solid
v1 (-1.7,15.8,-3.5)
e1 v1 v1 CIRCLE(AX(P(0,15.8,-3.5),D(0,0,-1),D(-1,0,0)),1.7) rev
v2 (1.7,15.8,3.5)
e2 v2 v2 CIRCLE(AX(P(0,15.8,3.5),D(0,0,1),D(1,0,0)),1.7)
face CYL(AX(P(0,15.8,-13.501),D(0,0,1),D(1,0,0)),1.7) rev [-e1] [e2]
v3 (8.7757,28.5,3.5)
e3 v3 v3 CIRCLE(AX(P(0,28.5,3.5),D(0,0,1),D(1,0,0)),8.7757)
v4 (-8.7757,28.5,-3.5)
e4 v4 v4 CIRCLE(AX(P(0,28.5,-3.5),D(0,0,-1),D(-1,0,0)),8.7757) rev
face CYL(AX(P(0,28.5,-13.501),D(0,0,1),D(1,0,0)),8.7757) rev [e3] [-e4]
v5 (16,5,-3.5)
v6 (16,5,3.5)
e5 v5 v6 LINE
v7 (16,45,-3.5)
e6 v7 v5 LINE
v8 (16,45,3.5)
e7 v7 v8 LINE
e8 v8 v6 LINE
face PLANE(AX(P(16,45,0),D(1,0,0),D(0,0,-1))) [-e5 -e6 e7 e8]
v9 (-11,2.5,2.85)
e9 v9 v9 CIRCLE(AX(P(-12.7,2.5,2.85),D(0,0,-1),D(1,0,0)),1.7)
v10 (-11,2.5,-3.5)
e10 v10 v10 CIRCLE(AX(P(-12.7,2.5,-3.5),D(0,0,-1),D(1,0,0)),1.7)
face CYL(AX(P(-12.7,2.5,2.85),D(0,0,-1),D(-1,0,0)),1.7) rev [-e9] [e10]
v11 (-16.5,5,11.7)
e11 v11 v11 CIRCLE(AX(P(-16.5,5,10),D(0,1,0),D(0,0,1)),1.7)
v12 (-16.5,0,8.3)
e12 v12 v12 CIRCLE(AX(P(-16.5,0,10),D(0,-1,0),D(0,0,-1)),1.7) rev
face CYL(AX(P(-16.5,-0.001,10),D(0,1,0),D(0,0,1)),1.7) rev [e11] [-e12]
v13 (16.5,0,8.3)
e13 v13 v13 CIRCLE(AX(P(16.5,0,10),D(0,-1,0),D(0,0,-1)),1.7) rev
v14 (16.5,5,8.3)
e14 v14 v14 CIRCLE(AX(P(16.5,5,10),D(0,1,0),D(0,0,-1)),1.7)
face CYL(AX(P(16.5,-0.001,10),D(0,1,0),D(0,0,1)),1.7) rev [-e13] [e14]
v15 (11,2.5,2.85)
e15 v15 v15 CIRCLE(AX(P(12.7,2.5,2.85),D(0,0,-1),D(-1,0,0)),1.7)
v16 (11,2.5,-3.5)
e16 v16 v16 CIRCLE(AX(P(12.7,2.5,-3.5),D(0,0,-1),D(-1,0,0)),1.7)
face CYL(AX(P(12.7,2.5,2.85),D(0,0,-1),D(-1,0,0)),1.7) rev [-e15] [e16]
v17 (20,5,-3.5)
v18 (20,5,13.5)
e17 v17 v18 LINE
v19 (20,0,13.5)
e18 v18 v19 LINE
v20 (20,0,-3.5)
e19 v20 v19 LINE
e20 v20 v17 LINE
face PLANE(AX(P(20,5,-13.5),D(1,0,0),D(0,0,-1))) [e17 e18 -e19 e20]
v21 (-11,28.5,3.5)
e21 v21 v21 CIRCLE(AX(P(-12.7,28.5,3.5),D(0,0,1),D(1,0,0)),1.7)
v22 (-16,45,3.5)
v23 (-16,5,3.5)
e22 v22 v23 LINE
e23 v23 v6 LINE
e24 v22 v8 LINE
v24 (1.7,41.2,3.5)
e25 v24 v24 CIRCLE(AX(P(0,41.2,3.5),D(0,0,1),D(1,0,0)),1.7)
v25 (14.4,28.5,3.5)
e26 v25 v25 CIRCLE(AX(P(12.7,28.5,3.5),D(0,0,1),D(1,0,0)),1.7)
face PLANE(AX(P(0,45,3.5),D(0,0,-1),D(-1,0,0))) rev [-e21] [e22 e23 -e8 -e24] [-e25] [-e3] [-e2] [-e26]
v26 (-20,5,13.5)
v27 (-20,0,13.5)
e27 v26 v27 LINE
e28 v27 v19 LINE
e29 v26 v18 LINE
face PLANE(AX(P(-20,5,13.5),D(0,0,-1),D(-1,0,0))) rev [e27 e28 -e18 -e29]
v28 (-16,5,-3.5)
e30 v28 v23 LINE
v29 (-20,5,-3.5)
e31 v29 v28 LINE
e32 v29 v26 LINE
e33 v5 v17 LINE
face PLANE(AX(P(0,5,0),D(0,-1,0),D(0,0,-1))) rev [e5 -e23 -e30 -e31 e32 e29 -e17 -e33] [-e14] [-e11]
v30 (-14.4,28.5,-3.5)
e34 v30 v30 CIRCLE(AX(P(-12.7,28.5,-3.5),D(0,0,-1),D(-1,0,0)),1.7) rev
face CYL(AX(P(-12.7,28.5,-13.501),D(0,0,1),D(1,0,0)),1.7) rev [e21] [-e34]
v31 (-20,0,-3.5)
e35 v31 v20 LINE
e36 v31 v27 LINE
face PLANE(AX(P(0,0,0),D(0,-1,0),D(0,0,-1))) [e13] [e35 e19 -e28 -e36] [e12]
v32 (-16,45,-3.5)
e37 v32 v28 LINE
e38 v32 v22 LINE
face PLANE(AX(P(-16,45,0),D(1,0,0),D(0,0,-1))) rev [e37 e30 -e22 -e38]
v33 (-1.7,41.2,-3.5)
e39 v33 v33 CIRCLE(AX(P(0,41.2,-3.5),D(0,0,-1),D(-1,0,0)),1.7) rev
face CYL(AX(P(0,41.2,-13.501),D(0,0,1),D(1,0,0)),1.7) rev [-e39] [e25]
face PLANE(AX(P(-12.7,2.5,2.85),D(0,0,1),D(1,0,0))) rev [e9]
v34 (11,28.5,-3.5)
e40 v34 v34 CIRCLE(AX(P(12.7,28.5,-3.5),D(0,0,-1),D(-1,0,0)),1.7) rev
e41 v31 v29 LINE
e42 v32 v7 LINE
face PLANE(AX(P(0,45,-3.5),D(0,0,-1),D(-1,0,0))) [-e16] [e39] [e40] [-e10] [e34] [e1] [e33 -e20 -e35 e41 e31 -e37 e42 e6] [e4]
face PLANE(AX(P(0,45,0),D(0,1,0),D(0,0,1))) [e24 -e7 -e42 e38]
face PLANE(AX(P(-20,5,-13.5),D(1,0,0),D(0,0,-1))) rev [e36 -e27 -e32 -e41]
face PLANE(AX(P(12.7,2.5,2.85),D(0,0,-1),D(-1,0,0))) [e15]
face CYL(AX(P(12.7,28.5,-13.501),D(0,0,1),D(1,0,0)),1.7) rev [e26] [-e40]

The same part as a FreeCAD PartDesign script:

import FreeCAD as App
import Part
import Sketcher
Q = App.Units.Quantity

doc = App.newDocument("Part")
body = doc.addObject("PartDesign::Body", "Body")

sketch1 = body.newObject("Sketcher::SketchObject", "Sketch")
sketch1.AttachmentSupport = (doc.getObject("XZ_Plane"), [""])
sketch1.MapMode = "FlatFace"
sketch1.addGeometry(Part.LineSegment(App.Vector(-20, -14, 0), App.Vector(-20, 14, 0)), False)
sketch1.addGeometry(Part.LineSegment(App.Vector(-20, 14, 0), App.Vector(20, 14, 0)), False)
sketch1.addGeometry(Part.LineSegment(App.Vector(20, 14, 0), App.Vector(20, -14, 0)), False)
sketch1.addGeometry(Part.LineSegment(App.Vector(20, -14, 0), App.Vector(-20, -14, 0)), False)
sketch1.addGeometry(Part.LineSegment(App.Vector(16, 4, 0), App.Vector(-16, 4, 0)), False)
sketch1.addGeometry(Part.LineSegment(App.Vector(-16, 4, 0), App.Vector(-16, -4, 0)), False)
sketch1.addGeometry(Part.LineSegment(App.Vector(-16, -4, 0), App.Vector(16, -4, 0)), False)
sketch1.addGeometry(Part.LineSegment(App.Vector(16, -4, 0), App.Vector(16, 4, 0)), False)
sketch1.addConstraint(Sketcher.Constraint("Coincident", 0, 2, 1, 1))
sketch1.addConstraint(Sketcher.Constraint("Coincident", 1, 2, 2, 1))
sketch1.addConstraint(Sketcher.Constraint("Coincident", 2, 2, 3, 1))
sketch1.addConstraint(Sketcher.Constraint("Coincident", 3, 2, 0, 1))
sketch1.addConstraint(Sketcher.Constraint("Coincident", 4, 2, 5, 1))
sketch1.addConstraint(Sketcher.Constraint("Coincident", 5, 2, 6, 1))
sketch1.addConstraint(Sketcher.Constraint("Coincident", 6, 2, 7, 1))
sketch1.addConstraint(Sketcher.Constraint("Coincident", 7, 2, 4, 1))
sketch1.addConstraint(Sketcher.Constraint("Vertical", 0))
sketch1.addConstraint(Sketcher.Constraint("Horizontal", 1))
sketch1.addConstraint(Sketcher.Constraint("Vertical", 2))
sketch1.addConstraint(Sketcher.Constraint("Horizontal", 3))
sketch1.addConstraint(Sketcher.Constraint("Horizontal", 4))
sketch1.addConstraint(Sketcher.Constraint("Vertical", 5))
sketch1.addConstraint(Sketcher.Constraint("Horizontal", 6))
sketch1.addConstraint(Sketcher.Constraint("Vertical", 7))
sketch1.addConstraint(Sketcher.Constraint("Symmetric", 0, 2, 2, 2, -1, 1))
sketch1.addConstraint(Sketcher.Constraint("Symmetric", 4, 2, 6, 2, -1, 1))
sketch1.addConstraint(Sketcher.Constraint("DistanceX", 1, 1, 1, 2, Q("40 mm")))
sketch1.addConstraint(Sketcher.Constraint("DistanceX", 4, 2, 4, 1, Q("32 mm")))
sketch1.addConstraint(Sketcher.Constraint("DistanceY", 0, 1, 0, 2, Q("27 mm")))
sketch1.addConstraint(Sketcher.Constraint("DistanceY", 5, 2, 5, 1, Q("7 mm")))
pad1 = body.newObject("PartDesign::Pad", "Pad")
pad1.Profile = sketch1
pad1.Length = 5
pad1.Reversed = True

sketch2 = body.newObject("Sketcher::SketchObject", "Sketch001")
sketch2.AttachmentSupport = (doc.getObject("XZ_Plane"), [""])
sketch2.MapMode = "FlatFace"
sketch2.addGeometry(Part.LineSegment(App.Vector(-16, -4, 0), App.Vector(-16, 4, 0)), False)
sketch2.addGeometry(Part.LineSegment(App.Vector(-16, 4, 0), App.Vector(16, 4, 0)), False)
sketch2.addGeometry(Part.LineSegment(App.Vector(16, 4, 0), App.Vector(16, -4, 0)), False)
sketch2.addGeometry(Part.LineSegment(App.Vector(16, -4, 0), App.Vector(-16, -4, 0)), False)
sketch2.addConstraint(Sketcher.Constraint("Coincident", 0, 2, 1, 1))
sketch2.addConstraint(Sketcher.Constraint("Coincident", 1, 2, 2, 1))
sketch2.addConstraint(Sketcher.Constraint("Coincident", 2, 2, 3, 1))
sketch2.addConstraint(Sketcher.Constraint("Coincident", 3, 2, 0, 1))
sketch2.addConstraint(Sketcher.Constraint("Vertical", 0))
sketch2.addConstraint(Sketcher.Constraint("Horizontal", 1))
sketch2.addConstraint(Sketcher.Constraint("Vertical", 2))
sketch2.addConstraint(Sketcher.Constraint("Horizontal", 3))
sketch2.addConstraint(Sketcher.Constraint("Symmetric", 0, 2, 2, 2, -1, 1))
sketch2.addConstraint(Sketcher.Constraint("DistanceX", 1, 1, 1, 2, Q("32 mm")))
sketch2.addConstraint(Sketcher.Constraint("DistanceY", 0, 1, 0, 2, Q("7 mm")))
pad2 = body.newObject("PartDesign::Pad", "Pad001")
pad2.Profile = sketch2
pad2.Length = 45
pad2.Reversed = True

sketch3 = body.newObject("Sketcher::SketchObject", "Sketch002")
sketch3.AttachmentSupport = (doc.getObject("XY_Plane"), [""])
sketch3.MapMode = "FlatFace"
sketch3.AttachmentOffset = App.Placement(App.Vector(0, 0, 3.5), App.Rotation())
sketch3.addGeometry(Part.Circle(App.Vector(0, 28, 0), App.Vector(0, 0, 1), 9), False)
sketch3.addConstraint(Sketcher.Constraint("PointOnObject", 0, 3, -2))
sketch3.addConstraint(Sketcher.Constraint("Diameter", 0, Q("17.5514 mm")))
sketch3.addConstraint(Sketcher.Constraint("DistanceY", -1, 1, 0, 3, Q("28.5 mm")))
pocket1 = body.newObject("PartDesign::Pocket", "Pocket")
pocket1.Profile = sketch3
pocket1.Type = "UpToFirst"

sketch4 = body.newObject("Sketcher::SketchObject", "Sketch003")
sketch4.AttachmentSupport = (doc.getObject("XY_Plane"), [""])
sketch4.MapMode = "FlatFace"
sketch4.AttachmentOffset = App.Placement(App.Vector(0, 0, 3.5), App.Rotation())
sketch4.addGeometry(Part.Circle(App.Vector(0, 41.2, 0), App.Vector(0, 0, 1), 1.7), False)
sketch4.addConstraint(Sketcher.Constraint("PointOnObject", 0, 3, -2))
sketch4.addConstraint(Sketcher.Constraint("Diameter", 0, Q("3.4 mm")))
sketch4.addConstraint(Sketcher.Constraint("DistanceY", -1, 1, 0, 3, Q("41.2 mm")))
pocket2 = body.newObject("PartDesign::Pocket", "Pocket001")
pocket2.Profile = sketch4
pocket2.Type = "UpToFirst"

sketch5 = body.newObject("Sketcher::SketchObject", "Sketch004")
sketch5.AttachmentSupport = (doc.getObject("XY_Plane"), [""])
sketch5.MapMode = "FlatFace"
sketch5.AttachmentOffset = App.Placement(App.Vector(0, 0, 3.5), App.Rotation())
sketch5.addGeometry(Part.Circle(App.Vector(12.7, 28.5, 0), App.Vector(0, 0, 1), 1.7), False)
sketch5.addConstraint(Sketcher.Constraint("Diameter", 0, Q("3.4 mm")))
sketch5.addConstraint(Sketcher.Constraint("DistanceX", -1, 1, 0, 3, Q("12.7 mm")))
sketch5.addConstraint(Sketcher.Constraint("DistanceY", -1, 1, 0, 3, Q("28.5 mm")))
pocket3 = body.newObject("PartDesign::Pocket", "Pocket002")
pocket3.Profile = sketch5
pocket3.Type = "UpToFirst"

sketch6 = body.newObject("Sketcher::SketchObject", "Sketch005")
sketch6.AttachmentSupport = (doc.getObject("XY_Plane"), [""])
sketch6.MapMode = "FlatFace"
sketch6.AttachmentOffset = App.Placement(App.Vector(0, 0, 3.5), App.Rotation())
sketch6.addGeometry(Part.Circle(App.Vector(0, 15.8, 0), App.Vector(0, 0, 1), 1.7), False)
sketch6.addConstraint(Sketcher.Constraint("PointOnObject", 0, 3, -2))
sketch6.addConstraint(Sketcher.Constraint("Diameter", 0, Q("3.4 mm")))
sketch6.addConstraint(Sketcher.Constraint("DistanceY", -1, 1, 0, 3, Q("15.8 mm")))
pocket4 = body.newObject("PartDesign::Pocket", "Pocket003")
pocket4.Profile = sketch6
pocket4.Type = "UpToFirst"

sketch7 = body.newObject("Sketcher::SketchObject", "Sketch006")
sketch7.AttachmentSupport = (doc.getObject("XY_Plane"), [""])
sketch7.MapMode = "FlatFace"
sketch7.AttachmentOffset = App.Placement(App.Vector(0, 0, 3.5), App.Rotation())
sketch7.addGeometry(Part.Circle(App.Vector(-12.7, 28.5, 0), App.Vector(0, 0, 1), 1.7), False)
sketch7.addConstraint(Sketcher.Constraint("Diameter", 0, Q("3.4 mm")))
sketch7.addConstraint(Sketcher.Constraint("DistanceX", 0, 3, -1, 1, Q("12.7 mm")))
sketch7.addConstraint(Sketcher.Constraint("DistanceY", -1, 1, 0, 3, Q("28.5 mm")))
pocket5 = body.newObject("PartDesign::Pocket", "Pocket004")
pocket5.Profile = sketch7
pocket5.Type = "UpToFirst"

sketch8 = body.newObject("Sketcher::SketchObject", "Sketch007")
sketch8.AttachmentSupport = (doc.getObject("XZ_Plane"), [""])
sketch8.MapMode = "FlatFace"
sketch8.AttachmentOffset = App.Placement(App.Vector(0, 0, -5), App.Rotation())
sketch8.addGeometry(Part.Circle(App.Vector(-16.5, -10, 0), App.Vector(0, 0, 1), 1.7), False)
sketch8.addConstraint(Sketcher.Constraint("Diameter", 0, Q("3.4 mm")))
sketch8.addConstraint(Sketcher.Constraint("DistanceY", 0, 3, -1, 1, Q("10 mm")))
sketch8.addConstraint(Sketcher.Constraint("DistanceX", 0, 3, -1, 1, Q("16.5 mm")))
pocket6 = body.newObject("PartDesign::Pocket", "Pocket005")
pocket6.Profile = sketch8
pocket6.Type = "UpToFirst"
pocket6.Reversed = True

sketch9 = body.newObject("Sketcher::SketchObject", "Sketch008")
sketch9.AttachmentSupport = (doc.getObject("XZ_Plane"), [""])
sketch9.MapMode = "FlatFace"
sketch9.AttachmentOffset = App.Placement(App.Vector(0, 0, -5), App.Rotation())
sketch9.addGeometry(Part.Circle(App.Vector(-16.5, 10, 0), App.Vector(0, 0, 1), 1.7), False)
sketch9.addConstraint(Sketcher.Constraint("Diameter", 0, Q("3.4 mm")))
sketch9.addConstraint(Sketcher.Constraint("DistanceY", -1, 1, 0, 3, Q("10 mm")))
sketch9.addConstraint(Sketcher.Constraint("DistanceX", 0, 3, -1, 1, Q("16.5 mm")))
pocket7 = body.newObject("PartDesign::Pocket", "Pocket006")
pocket7.Profile = sketch9
pocket7.Type = "UpToFirst"
pocket7.Reversed = True

sketch10 = body.newObject("Sketcher::SketchObject", "Sketch009")
sketch10.AttachmentSupport = (doc.getObject("XZ_Plane"), [""])
sketch10.MapMode = "FlatFace"
sketch10.AttachmentOffset = App.Placement(App.Vector(0, 0, -5), App.Rotation())
sketch10.addGeometry(Part.Circle(App.Vector(16.5, 10, 0), App.Vector(0, 0, 1), 1.7), False)
sketch10.addConstraint(Sketcher.Constraint("Diameter", 0, Q("3.4 mm")))
sketch10.addConstraint(Sketcher.Constraint("DistanceY", -1, 1, 0, 3, Q("10 mm")))
sketch10.addConstraint(Sketcher.Constraint("DistanceX", -1, 1, 0, 3, Q("16.5 mm")))
pocket8 = body.newObject("PartDesign::Pocket", "Pocket007")
pocket8.Profile = sketch10
pocket8.Type = "UpToFirst"
pocket8.Reversed = True

sketch11 = body.newObject("Sketcher::SketchObject", "Sketch010")
sketch11.AttachmentSupport = (doc.getObject("XZ_Plane"), [""])
sketch11.MapMode = "FlatFace"
sketch11.AttachmentOffset = App.Placement(App.Vector(0, 0, -5), App.Rotation())
sketch11.addGeometry(Part.Circle(App.Vector(16.5, -10, 0), App.Vector(0, 0, 1), 1.7), False)
sketch11.addConstraint(Sketcher.Constraint("Diameter", 0, Q("3.4 mm")))
sketch11.addConstraint(Sketcher.Constraint("DistanceY", 0, 3, -1, 1, Q("10 mm")))
sketch11.addConstraint(Sketcher.Constraint("DistanceX", -1, 1, 0, 3, Q("16.5 mm")))
pocket9 = body.newObject("PartDesign::Pocket", "Pocket008")
pocket9.Profile = sketch11
pocket9.Type = "UpToFirst"
pocket9.Reversed = True

sketch12 = body.newObject("Sketcher::SketchObject", "Sketch011")
sketch12.AttachmentSupport = (doc.getObject("XZ_Plane"), [""])
sketch12.MapMode = "FlatFace"
sketch12.AttachmentOffset = App.Placement(App.Vector(0, 0, -5), App.Rotation())
sketch12.addGeometry(Part.LineSegment(App.Vector(-20, -14, 0), App.Vector(-20, -4, 0)), False)
sketch12.addGeometry(Part.LineSegment(App.Vector(-20, -4, 0), App.Vector(20, -4, 0)), False)
sketch12.addGeometry(Part.LineSegment(App.Vector(20, -4, 0), App.Vector(20, -14, 0)), False)
sketch12.addGeometry(Part.LineSegment(App.Vector(20, -14, 0), App.Vector(-20, -14, 0)), False)
sketch12.addConstraint(Sketcher.Constraint("Coincident", 0, 2, 1, 1))
sketch12.addConstraint(Sketcher.Constraint("Coincident", 1, 2, 2, 1))
sketch12.addConstraint(Sketcher.Constraint("Coincident", 2, 2, 3, 1))
sketch12.addConstraint(Sketcher.Constraint("Coincident", 3, 2, 0, 1))
sketch12.addConstraint(Sketcher.Constraint("Vertical", 0))
sketch12.addConstraint(Sketcher.Constraint("Horizontal", 1))
sketch12.addConstraint(Sketcher.Constraint("Vertical", 2))
sketch12.addConstraint(Sketcher.Constraint("Horizontal", 3))
sketch12.addConstraint(Sketcher.Constraint("DistanceX", 1, 1, 1, 2, Q("40 mm")))
sketch12.addConstraint(Sketcher.Constraint("DistanceY", 0, 1, 0, 2, Q("10 mm")))
sketch12.addConstraint(Sketcher.Constraint("DistanceX", 0, 2, -1, 1, Q("20 mm")))
sketch12.addConstraint(Sketcher.Constraint("DistanceY", 0, 2, -1, 1, Q("3.5 mm")))
pocket10 = body.newObject("PartDesign::Pocket", "Pocket009")
pocket10.Profile = sketch12
pocket10.Type = "UpToFirst"
pocket10.Reversed = True

sketch13 = body.newObject("Sketcher::SketchObject", "Sketch012")
sketch13.AttachmentSupport = (doc.getObject("XY_Plane"), [""])
sketch13.MapMode = "FlatFace"
sketch13.AttachmentOffset = App.Placement(App.Vector(0, 0, -3.5), App.Rotation())
sketch13.addGeometry(Part.Circle(App.Vector(12.7, 2.5, 0), App.Vector(0, 0, 1), 1.7), False)
sketch13.addGeometry(Part.Circle(App.Vector(-12.7, 2.5, 0), App.Vector(0, 0, 1), 1.7), False)
sketch13.addConstraint(Sketcher.Constraint("Equal", 0, 1))
sketch13.addConstraint(Sketcher.Constraint("Symmetric", 0, 3, 1, 3, -2))
sketch13.addConstraint(Sketcher.Constraint("Diameter", 0, Q("3.4 mm")))
sketch13.addConstraint(Sketcher.Constraint("DistanceX", -1, 1, 0, 3, Q("12.7 mm")))
sketch13.addConstraint(Sketcher.Constraint("DistanceY", -1, 1, 0, 3, Q("2.5 mm")))
pocket11 = body.newObject("PartDesign::Pocket", "Pocket010")
pocket11.Profile = sketch13
pocket11.Length = 6.35
pocket11.Reversed = True

doc.recompute()
